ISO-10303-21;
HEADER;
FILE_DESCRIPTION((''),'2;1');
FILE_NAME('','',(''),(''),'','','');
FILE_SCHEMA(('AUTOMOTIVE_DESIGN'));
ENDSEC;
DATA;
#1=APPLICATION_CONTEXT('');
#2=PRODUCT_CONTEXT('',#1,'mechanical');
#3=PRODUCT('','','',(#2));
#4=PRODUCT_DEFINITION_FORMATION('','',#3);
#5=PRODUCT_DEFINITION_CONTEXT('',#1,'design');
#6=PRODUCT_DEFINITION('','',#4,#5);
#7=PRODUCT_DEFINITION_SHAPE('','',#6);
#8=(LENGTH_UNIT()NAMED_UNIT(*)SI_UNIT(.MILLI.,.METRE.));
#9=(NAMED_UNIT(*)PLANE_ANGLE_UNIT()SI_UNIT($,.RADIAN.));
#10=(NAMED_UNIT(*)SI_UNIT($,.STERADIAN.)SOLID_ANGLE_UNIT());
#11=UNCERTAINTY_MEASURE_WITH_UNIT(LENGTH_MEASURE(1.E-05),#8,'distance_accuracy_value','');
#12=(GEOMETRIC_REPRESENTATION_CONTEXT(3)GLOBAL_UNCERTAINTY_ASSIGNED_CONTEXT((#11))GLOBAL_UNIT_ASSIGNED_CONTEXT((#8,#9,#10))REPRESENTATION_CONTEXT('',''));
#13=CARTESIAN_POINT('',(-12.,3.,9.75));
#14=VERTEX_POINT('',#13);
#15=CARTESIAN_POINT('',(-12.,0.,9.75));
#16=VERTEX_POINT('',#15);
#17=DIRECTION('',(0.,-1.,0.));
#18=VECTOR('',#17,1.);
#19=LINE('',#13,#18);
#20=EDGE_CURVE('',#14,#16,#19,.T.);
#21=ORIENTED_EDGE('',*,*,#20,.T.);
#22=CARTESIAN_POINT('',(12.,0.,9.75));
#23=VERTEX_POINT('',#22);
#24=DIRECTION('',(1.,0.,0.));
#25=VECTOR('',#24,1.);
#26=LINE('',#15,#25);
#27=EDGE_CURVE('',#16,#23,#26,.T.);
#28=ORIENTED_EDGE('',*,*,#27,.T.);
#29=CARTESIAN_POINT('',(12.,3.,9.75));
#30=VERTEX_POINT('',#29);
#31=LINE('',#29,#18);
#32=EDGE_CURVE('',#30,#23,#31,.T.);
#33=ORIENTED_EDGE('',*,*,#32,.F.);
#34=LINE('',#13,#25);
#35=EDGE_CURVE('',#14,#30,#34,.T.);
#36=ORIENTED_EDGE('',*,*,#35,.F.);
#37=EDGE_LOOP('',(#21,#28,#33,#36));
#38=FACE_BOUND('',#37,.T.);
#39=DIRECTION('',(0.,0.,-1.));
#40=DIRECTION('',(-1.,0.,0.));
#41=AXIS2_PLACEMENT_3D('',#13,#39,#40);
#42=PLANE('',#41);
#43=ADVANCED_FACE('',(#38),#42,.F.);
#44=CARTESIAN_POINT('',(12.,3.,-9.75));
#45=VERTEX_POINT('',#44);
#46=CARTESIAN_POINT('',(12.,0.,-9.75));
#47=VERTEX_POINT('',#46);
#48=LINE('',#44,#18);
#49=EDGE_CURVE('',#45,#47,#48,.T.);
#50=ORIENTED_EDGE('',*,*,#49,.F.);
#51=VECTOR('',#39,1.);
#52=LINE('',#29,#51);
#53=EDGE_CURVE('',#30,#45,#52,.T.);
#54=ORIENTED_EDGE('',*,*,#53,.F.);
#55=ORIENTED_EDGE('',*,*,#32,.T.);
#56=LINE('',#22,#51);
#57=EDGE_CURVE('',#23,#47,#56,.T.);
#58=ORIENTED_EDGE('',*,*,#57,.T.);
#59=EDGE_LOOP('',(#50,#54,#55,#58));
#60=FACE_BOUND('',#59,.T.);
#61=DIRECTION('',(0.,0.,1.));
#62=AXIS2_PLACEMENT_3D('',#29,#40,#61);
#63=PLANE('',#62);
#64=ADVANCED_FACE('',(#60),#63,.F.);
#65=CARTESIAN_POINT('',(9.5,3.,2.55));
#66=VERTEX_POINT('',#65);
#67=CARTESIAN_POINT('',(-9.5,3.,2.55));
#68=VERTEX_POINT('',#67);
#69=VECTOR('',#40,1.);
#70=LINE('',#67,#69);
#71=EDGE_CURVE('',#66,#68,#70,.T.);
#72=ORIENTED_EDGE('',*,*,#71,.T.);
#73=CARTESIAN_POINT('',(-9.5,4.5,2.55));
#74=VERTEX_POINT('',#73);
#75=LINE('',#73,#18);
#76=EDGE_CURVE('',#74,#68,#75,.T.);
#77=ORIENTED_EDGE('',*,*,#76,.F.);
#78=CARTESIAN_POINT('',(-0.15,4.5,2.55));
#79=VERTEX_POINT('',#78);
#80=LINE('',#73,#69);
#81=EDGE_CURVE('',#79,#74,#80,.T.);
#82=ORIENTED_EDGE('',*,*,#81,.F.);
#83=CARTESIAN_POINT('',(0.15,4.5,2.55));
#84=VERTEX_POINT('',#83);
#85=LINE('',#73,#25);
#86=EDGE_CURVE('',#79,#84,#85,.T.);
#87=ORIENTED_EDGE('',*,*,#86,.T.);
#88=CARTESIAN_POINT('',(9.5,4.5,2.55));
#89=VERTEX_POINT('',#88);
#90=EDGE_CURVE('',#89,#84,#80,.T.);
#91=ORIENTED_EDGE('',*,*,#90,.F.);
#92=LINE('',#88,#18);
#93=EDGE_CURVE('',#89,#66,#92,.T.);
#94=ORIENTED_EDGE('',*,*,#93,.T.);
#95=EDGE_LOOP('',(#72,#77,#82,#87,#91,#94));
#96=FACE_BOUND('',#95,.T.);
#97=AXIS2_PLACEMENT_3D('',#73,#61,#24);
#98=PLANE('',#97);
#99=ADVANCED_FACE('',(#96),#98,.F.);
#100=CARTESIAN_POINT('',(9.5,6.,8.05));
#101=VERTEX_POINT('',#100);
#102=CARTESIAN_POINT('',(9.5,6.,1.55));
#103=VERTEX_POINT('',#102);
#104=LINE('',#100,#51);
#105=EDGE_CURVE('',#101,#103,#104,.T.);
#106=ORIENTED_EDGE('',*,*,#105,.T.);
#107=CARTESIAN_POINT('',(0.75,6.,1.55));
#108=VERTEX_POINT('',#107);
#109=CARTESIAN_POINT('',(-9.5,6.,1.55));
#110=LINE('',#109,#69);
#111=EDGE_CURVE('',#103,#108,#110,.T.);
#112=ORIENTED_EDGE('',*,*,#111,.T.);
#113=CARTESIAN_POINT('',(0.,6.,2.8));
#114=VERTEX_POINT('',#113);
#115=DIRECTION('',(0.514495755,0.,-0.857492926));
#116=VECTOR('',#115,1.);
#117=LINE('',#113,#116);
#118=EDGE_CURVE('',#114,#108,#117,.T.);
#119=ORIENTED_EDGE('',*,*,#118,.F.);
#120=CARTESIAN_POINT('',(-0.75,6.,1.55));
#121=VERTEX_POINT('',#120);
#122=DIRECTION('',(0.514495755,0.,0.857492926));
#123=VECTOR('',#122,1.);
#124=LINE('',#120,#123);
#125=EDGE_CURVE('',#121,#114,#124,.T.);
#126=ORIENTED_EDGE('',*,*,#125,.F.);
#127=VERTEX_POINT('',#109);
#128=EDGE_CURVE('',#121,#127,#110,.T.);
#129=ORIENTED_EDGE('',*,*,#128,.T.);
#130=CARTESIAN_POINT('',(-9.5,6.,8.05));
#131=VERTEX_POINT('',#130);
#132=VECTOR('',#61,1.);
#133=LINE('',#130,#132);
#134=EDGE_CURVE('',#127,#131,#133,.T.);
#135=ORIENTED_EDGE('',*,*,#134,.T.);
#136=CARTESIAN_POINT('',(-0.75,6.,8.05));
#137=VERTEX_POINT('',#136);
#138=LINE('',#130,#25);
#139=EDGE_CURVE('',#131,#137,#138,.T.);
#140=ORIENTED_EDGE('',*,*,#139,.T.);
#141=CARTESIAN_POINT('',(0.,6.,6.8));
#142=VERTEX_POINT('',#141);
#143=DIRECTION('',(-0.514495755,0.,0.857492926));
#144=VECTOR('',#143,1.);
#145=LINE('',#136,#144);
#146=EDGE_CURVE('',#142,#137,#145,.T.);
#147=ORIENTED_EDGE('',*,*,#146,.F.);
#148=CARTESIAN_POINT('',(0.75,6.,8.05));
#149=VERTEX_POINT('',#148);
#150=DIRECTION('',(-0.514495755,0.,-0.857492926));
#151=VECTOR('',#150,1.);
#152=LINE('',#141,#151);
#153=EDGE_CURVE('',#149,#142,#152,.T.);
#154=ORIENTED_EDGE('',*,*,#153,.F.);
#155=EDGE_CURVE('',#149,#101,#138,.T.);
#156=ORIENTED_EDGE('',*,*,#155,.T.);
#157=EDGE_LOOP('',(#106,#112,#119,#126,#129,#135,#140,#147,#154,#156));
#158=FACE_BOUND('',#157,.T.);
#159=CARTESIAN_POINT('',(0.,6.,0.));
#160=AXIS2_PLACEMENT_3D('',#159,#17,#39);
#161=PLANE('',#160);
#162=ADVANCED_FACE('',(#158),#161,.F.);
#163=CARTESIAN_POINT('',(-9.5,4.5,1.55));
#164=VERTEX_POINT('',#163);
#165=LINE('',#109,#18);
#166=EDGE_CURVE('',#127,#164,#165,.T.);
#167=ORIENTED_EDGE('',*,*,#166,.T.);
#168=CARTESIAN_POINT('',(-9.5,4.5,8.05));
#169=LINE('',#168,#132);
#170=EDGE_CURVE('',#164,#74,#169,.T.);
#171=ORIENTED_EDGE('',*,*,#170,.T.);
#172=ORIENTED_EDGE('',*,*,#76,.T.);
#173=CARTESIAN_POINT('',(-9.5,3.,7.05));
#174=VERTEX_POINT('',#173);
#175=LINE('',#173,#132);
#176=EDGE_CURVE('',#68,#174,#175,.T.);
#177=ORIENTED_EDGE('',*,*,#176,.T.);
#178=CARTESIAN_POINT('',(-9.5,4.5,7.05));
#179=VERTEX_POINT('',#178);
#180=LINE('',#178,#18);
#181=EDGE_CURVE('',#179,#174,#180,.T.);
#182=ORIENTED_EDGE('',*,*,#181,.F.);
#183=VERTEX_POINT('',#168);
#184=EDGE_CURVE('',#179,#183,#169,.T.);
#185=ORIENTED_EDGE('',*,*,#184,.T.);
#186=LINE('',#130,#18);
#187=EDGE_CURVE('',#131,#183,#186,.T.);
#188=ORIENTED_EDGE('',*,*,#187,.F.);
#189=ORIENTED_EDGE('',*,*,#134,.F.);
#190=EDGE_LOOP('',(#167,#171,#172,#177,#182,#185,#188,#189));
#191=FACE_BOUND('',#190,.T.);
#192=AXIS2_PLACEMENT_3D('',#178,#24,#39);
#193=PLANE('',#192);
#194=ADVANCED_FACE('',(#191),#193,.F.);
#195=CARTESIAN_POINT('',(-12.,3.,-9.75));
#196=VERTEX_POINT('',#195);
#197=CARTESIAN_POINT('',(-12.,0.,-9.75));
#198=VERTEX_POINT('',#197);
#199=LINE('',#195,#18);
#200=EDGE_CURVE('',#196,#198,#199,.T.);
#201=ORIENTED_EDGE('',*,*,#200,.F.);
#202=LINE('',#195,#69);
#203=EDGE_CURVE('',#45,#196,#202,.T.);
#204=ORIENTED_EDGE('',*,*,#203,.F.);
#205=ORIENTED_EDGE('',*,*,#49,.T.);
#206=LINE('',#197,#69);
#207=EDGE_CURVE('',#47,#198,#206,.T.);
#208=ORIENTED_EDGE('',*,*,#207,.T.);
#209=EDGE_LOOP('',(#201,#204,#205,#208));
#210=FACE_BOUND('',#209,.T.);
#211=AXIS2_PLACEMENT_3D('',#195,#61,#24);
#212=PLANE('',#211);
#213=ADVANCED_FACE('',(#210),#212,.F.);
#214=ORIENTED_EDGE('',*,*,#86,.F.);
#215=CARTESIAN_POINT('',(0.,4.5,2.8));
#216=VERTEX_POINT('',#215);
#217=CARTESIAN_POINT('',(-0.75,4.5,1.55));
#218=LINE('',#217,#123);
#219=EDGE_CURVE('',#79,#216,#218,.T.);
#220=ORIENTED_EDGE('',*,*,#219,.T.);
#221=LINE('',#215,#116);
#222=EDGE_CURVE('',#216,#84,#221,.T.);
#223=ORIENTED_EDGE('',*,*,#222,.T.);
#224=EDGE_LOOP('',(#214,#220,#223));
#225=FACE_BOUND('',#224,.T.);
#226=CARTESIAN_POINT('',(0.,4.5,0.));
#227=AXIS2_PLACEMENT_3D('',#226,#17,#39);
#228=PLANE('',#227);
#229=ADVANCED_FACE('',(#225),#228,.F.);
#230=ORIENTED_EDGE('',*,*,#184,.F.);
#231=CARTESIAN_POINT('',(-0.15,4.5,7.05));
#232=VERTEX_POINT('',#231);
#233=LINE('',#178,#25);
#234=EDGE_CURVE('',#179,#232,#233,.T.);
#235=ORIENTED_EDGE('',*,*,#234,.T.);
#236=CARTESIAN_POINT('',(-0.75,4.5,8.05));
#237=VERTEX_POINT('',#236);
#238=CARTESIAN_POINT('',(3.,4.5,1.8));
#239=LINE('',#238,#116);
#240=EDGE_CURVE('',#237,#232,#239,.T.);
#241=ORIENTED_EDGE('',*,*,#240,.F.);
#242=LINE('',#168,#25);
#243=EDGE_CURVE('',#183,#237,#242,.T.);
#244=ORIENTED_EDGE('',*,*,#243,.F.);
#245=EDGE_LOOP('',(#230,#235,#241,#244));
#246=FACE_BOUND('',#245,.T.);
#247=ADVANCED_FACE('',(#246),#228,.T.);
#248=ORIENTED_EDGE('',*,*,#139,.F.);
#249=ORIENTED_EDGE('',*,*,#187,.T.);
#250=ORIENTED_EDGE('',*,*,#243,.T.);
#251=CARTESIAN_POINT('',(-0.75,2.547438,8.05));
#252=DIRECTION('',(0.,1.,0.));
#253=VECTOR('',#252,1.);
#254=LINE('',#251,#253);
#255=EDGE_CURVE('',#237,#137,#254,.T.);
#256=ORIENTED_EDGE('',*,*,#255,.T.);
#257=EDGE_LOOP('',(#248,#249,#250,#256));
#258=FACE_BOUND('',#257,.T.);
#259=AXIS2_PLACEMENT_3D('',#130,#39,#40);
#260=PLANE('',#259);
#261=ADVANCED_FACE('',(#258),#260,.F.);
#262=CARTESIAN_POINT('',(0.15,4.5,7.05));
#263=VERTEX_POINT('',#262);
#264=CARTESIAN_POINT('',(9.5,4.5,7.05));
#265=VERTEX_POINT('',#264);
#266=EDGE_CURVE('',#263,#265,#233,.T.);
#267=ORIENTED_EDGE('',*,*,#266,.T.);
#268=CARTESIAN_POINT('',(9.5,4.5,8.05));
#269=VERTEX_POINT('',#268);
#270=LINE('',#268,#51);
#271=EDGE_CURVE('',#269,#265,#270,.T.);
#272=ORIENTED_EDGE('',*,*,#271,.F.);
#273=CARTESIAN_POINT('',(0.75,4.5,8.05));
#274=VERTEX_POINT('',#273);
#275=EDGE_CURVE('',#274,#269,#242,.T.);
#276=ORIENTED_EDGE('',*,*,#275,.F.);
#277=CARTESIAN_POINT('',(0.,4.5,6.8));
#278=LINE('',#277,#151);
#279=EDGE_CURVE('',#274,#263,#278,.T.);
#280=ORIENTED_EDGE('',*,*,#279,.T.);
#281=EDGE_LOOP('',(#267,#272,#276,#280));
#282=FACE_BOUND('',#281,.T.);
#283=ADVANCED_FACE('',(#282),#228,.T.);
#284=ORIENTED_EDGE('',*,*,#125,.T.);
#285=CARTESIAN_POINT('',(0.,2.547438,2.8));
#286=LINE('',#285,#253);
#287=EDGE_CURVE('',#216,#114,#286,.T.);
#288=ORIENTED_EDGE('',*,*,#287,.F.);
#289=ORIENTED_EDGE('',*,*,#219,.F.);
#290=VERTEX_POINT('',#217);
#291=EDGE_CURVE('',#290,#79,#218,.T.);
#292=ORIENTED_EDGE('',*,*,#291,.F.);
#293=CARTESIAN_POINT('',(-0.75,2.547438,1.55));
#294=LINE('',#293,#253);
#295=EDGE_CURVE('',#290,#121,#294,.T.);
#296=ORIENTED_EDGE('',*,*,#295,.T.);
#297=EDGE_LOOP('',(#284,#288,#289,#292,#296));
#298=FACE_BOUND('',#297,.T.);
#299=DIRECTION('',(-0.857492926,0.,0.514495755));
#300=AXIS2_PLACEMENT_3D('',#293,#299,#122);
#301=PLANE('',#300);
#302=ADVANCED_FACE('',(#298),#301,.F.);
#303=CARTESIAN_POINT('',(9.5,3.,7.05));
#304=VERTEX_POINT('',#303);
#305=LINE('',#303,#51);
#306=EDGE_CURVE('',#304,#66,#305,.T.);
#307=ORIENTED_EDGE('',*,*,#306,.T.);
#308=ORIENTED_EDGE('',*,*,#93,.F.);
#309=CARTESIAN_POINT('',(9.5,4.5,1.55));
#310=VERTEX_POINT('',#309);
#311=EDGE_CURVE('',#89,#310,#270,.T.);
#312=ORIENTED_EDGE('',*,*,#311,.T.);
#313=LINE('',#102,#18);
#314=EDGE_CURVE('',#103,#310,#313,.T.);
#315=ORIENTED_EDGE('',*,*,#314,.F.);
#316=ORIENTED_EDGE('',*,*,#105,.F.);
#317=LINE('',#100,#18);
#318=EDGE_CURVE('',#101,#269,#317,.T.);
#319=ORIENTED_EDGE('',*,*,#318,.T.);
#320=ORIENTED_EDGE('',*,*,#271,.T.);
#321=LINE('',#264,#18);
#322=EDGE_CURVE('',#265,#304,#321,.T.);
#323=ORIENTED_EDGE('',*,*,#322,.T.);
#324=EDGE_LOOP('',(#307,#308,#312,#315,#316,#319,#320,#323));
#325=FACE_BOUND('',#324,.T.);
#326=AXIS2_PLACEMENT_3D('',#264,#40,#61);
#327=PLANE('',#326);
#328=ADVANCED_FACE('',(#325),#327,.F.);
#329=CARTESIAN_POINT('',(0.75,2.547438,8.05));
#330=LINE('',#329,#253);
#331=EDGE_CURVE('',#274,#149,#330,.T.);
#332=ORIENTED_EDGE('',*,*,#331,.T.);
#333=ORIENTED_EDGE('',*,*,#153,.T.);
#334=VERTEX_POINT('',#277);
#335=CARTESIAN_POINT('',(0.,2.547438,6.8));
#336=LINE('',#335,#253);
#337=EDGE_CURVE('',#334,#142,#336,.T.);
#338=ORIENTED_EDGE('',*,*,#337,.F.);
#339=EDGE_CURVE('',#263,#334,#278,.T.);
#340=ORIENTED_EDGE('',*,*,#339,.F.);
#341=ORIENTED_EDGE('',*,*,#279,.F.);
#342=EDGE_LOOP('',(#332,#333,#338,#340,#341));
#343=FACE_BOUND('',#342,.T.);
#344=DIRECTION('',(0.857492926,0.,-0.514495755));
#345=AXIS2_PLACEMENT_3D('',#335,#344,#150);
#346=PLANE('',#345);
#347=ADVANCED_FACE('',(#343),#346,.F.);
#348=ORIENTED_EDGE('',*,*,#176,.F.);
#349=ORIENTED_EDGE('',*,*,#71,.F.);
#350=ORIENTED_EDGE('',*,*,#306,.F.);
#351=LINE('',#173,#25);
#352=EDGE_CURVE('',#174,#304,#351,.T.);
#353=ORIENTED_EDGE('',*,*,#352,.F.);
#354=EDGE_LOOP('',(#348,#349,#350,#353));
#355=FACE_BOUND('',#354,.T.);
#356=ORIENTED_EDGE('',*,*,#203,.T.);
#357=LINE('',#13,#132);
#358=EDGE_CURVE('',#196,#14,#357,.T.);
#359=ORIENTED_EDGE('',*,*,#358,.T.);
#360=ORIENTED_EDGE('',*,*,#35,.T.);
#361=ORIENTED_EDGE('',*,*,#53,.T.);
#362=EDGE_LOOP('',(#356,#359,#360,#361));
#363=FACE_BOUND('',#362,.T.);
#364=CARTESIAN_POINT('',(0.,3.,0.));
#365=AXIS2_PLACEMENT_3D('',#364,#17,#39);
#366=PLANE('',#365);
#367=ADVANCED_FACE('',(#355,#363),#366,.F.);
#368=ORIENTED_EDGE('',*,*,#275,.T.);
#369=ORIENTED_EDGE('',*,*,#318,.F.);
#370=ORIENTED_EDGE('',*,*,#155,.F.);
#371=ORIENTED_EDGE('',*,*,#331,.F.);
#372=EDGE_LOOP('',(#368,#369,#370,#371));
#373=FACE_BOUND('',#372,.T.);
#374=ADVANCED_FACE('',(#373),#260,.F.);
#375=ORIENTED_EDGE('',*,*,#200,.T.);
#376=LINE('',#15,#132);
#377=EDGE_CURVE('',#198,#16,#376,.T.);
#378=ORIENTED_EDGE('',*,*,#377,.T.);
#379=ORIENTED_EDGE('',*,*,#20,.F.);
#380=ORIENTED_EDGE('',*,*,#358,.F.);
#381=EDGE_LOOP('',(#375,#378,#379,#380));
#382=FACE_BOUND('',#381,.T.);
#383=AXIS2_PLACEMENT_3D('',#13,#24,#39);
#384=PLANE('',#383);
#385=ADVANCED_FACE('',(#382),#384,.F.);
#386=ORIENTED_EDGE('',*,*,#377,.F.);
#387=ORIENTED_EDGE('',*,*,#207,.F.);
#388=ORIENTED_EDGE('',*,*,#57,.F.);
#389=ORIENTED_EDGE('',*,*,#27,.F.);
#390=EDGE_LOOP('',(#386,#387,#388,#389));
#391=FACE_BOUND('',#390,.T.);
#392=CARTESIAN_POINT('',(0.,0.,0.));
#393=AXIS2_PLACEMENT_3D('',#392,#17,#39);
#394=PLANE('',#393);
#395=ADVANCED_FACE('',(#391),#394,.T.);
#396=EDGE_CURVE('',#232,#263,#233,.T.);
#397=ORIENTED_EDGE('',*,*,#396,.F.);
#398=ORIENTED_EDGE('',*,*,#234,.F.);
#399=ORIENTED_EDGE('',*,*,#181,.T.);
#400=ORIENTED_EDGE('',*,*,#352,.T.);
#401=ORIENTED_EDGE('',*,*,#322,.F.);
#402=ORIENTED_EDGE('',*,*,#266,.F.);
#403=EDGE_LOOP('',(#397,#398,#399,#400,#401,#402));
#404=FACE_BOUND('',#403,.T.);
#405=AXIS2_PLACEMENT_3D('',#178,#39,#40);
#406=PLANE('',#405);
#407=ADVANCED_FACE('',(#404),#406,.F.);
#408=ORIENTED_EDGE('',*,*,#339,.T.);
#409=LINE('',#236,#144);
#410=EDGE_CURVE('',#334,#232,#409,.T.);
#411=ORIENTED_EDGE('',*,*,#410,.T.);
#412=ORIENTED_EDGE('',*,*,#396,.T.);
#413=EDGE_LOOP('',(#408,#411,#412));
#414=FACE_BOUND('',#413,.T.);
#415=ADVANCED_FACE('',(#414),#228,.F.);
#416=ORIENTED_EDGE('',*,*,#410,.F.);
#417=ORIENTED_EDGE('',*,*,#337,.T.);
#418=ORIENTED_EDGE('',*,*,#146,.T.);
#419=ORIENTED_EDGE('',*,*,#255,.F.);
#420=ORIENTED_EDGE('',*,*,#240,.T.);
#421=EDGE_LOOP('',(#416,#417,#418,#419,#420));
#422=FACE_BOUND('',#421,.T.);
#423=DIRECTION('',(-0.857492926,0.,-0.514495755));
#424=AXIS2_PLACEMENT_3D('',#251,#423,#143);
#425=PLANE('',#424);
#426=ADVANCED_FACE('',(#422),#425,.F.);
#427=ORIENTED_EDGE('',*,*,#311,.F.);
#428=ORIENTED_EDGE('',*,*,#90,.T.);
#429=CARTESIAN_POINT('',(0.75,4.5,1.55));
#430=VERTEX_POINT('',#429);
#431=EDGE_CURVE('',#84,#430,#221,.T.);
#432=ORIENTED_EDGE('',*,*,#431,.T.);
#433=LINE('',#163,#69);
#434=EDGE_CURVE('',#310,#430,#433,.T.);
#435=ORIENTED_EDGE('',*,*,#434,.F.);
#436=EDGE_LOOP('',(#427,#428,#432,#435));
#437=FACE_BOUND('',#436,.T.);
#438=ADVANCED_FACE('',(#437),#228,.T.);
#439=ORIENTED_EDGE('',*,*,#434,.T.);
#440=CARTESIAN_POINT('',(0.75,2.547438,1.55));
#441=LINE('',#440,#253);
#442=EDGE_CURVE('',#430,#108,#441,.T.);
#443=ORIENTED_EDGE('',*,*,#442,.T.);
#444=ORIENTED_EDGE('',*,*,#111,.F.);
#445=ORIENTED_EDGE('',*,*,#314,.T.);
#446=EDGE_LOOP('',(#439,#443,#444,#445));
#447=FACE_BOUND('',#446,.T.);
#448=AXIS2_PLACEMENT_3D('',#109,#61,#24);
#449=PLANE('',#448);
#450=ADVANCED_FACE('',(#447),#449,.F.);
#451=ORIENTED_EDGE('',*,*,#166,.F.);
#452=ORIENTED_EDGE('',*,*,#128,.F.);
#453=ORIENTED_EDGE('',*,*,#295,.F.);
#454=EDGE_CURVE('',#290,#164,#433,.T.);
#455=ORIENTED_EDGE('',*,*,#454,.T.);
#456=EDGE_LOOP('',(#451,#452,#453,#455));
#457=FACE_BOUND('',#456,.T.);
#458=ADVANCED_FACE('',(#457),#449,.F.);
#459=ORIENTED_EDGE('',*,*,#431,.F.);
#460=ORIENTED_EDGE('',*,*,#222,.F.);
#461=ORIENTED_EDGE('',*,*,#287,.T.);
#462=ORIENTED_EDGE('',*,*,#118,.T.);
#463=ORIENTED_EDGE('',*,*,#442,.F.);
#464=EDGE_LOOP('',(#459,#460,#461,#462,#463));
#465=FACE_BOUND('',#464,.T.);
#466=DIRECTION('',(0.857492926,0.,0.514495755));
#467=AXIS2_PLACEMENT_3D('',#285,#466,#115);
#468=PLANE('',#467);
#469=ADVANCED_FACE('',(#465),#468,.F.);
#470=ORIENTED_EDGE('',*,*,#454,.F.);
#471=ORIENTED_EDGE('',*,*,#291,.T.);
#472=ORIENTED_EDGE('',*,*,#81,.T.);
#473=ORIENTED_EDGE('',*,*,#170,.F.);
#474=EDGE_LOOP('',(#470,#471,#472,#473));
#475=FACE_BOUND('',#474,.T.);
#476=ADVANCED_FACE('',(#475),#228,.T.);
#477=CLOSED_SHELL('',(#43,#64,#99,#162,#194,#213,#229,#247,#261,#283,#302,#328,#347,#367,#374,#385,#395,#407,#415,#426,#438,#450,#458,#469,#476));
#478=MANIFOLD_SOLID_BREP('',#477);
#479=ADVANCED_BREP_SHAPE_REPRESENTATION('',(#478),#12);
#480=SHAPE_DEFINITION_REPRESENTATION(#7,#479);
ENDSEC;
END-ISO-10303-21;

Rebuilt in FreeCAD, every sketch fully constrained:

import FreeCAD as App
import Part
import Sketcher
Q = App.Units.Quantity


def add_polygon(sketch, points):
    """Adds a closed chain of lines whose ends are joined by coincident constraints."""
    first, n = sketch.GeometryCount, len(points)
    for a, b in zip(points, points[1:] + points[:1]):
        sketch.addGeometry(Part.LineSegment(App.Vector(*a, 0), App.Vector(*b, 0)), False)
    for i in range(n):
        sketch.addConstraint(Sketcher.Constraint("Coincident", first + i, 2, first + (i + 1) % n, 1))

doc = App.newDocument("Part")
body = doc.addObject("PartDesign::Body", "Body")

# Sketch on XZ plane
sketch1 = body.newObject("Sketcher::SketchObject", "Sketch")
sketch1.AttachmentSupport = (doc.getObject("XZ_Plane"), [""])
sketch1.MapMode = "FlatFace"
add_polygon(sketch1, [(-12, -10), (-12, 10), (12, 10), (12, -10)])  # lines 0-3
sketch1.addConstraint(Sketcher.Constraint("Vertical", 0))
sketch1.addConstraint(Sketcher.Constraint("Horizontal", 1))
sketch1.addConstraint(Sketcher.Constraint("Vertical", 2))
sketch1.addConstraint(Sketcher.Constraint("Horizontal", 3))
sketch1.addConstraint(Sketcher.Constraint("Symmetric", 0, 2, 2, 2, -1, 1))
sketch1.addConstraint(Sketcher.Constraint("DistanceX", 1, 1, 1, 2, Q("24 mm")))
sketch1.addConstraint(Sketcher.Constraint("DistanceY", 0, 1, 0, 2, Q("19.5 mm")))
pad1 = body.newObject("PartDesign::Pad", "Pad")
pad1.Profile = sketch1
pad1.Length = 3
pad1.Reversed = True

# Sketch on XZ plane
sketch2 = body.newObject("Sketcher::SketchObject", "Sketch001")
sketch2.AttachmentSupport = (doc.getObject("XZ_Plane"), [""])
sketch2.MapMode = "FlatFace"
sketch2.AttachmentOffset = App.Placement(App.Vector(0, 0, -3), App.Rotation())
add_polygon(sketch2, [(-9.5, 2.5), (-9.5, 7), (9.5, 7), (9.5, 2.5)])  # lines 0-3
sketch2.addConstraint(Sketcher.Constraint("Vertical", 0))
sketch2.addConstraint(Sketcher.Constraint("Horizontal", 1))
sketch2.addConstraint(Sketcher.Constraint("Vertical", 2))
sketch2.addConstraint(Sketcher.Constraint("Horizontal", 3))
sketch2.addConstraint(Sketcher.Constraint("DistanceX", 1, 1, 1, 2, Q("19 mm")))
sketch2.addConstraint(Sketcher.Constraint("DistanceY", 0, 1, 0, 2, Q("4.5 mm")))
sketch2.addConstraint(Sketcher.Constraint("DistanceX", 0, 2, -1, 1, Q("9.5 mm")))
sketch2.addConstraint(Sketcher.Constraint("DistanceY", -1, 1, 0, 2, Q("7.05 mm")))
pad2 = body.newObject("PartDesign::Pad", "Pad001")
pad2.Profile = sketch2
pad2.Length = 1.5
pad2.Reversed = True

# Sketch on XZ plane
sketch3 = body.newObject("Sketcher::SketchObject", "Sketch002")
sketch3.AttachmentSupport = (doc.getObject("XZ_Plane"), [""])
sketch3.MapMode = "FlatFace"
sketch3.AttachmentOffset = App.Placement(App.Vector(0, 0, -4.5), App.Rotation())
add_polygon(sketch3, [(-10, 2), (-10, 8), (10, 8), (10, 2)])  # lines 0-3
sketch3.addConstraint(Sketcher.Constraint("Vertical", 0))
sketch3.addConstraint(Sketcher.Constraint("Horizontal", 1))
sketch3.addConstraint(Sketcher.Constraint("Vertical", 2))
sketch3.addConstraint(Sketcher.Constraint("Horizontal", 3))
sketch3.addConstraint(Sketcher.Constraint("DistanceX", 1, 1, 1, 2, Q("19 mm")))
sketch3.addConstraint(Sketcher.Constraint("DistanceY", 0, 1, 0, 2, Q("6.5 mm")))
sketch3.addConstraint(Sketcher.Constraint("DistanceX", 0, 2, -1, 1, Q("9.5 mm")))
sketch3.addConstraint(Sketcher.Constraint("DistanceY", -1, 1, 0, 2, Q("8.05 mm")))
pad3 = body.newObject("PartDesign::Pad", "Pad002")
pad3.Profile = sketch3
pad3.Length = 1.5
pad3.Reversed = True

# Sketch on XZ plane
sketch4 = body.newObject("Sketcher::SketchObject", "Sketch003")
sketch4.AttachmentSupport = (doc.getObject("XZ_Plane"), [""])
sketch4.MapMode = "FlatFace"
sketch4.AttachmentOffset = App.Placement(App.Vector(0, 0, -6), App.Rotation())
add_polygon(sketch4, [(0, 2.8), (0.8, 1.6), (-0.8, 1.6)])  # lines 0-2
add_polygon(sketch4, [(0.8, 8.1), (0, 6.8), (-0.8, 8.1)])  # lines 3-5
sketch4.addConstraint(Sketcher.Constraint("Horizontal", 1))
sketch4.addConstraint(Sketcher.Constraint("Horizontal", 5))
sketch4.addConstraint(Sketcher.Constraint("PointOnObject", 2, 2, -2))
sketch4.addConstraint(Sketcher.Constraint("PointOnObject", 3, 2, -2))
sketch4.addConstraint(Sketcher.Constraint("Parallel", 2, 3))
sketch4.addConstraint(Sketcher.Constraint("Parallel", 0, 4))
sketch4.addConstraint(Sketcher.Constraint("Vertical", 1, 2, 4, 2))
sketch4.addConstraint(Sketcher.Constraint("Vertical", 0, 2, 5, 2))
sketch4.addConstraint(Sketcher.Constraint("DistanceX", 1, 2, 1, 1, Q("1.5 mm")))
sketch4.addConstraint(Sketcher.Constraint("DistanceY", 2, 2, 3, 2, Q("4 mm")))
sketch4.addConstraint(Sketcher.Constraint("DistanceY", -1, 1, 2, 2, Q("2.8 mm")))
sketch4.addConstraint(Sketcher.Constraint("DistanceY", 1, 2, 4, 2, Q("6.5 mm")))
pocket1 = body.newObject("PartDesign::Pocket", "Pocket")
pocket1.Profile = sketch4
pocket1.Length = 1.5
pocket1.Reversed = True

doc.recompute()
